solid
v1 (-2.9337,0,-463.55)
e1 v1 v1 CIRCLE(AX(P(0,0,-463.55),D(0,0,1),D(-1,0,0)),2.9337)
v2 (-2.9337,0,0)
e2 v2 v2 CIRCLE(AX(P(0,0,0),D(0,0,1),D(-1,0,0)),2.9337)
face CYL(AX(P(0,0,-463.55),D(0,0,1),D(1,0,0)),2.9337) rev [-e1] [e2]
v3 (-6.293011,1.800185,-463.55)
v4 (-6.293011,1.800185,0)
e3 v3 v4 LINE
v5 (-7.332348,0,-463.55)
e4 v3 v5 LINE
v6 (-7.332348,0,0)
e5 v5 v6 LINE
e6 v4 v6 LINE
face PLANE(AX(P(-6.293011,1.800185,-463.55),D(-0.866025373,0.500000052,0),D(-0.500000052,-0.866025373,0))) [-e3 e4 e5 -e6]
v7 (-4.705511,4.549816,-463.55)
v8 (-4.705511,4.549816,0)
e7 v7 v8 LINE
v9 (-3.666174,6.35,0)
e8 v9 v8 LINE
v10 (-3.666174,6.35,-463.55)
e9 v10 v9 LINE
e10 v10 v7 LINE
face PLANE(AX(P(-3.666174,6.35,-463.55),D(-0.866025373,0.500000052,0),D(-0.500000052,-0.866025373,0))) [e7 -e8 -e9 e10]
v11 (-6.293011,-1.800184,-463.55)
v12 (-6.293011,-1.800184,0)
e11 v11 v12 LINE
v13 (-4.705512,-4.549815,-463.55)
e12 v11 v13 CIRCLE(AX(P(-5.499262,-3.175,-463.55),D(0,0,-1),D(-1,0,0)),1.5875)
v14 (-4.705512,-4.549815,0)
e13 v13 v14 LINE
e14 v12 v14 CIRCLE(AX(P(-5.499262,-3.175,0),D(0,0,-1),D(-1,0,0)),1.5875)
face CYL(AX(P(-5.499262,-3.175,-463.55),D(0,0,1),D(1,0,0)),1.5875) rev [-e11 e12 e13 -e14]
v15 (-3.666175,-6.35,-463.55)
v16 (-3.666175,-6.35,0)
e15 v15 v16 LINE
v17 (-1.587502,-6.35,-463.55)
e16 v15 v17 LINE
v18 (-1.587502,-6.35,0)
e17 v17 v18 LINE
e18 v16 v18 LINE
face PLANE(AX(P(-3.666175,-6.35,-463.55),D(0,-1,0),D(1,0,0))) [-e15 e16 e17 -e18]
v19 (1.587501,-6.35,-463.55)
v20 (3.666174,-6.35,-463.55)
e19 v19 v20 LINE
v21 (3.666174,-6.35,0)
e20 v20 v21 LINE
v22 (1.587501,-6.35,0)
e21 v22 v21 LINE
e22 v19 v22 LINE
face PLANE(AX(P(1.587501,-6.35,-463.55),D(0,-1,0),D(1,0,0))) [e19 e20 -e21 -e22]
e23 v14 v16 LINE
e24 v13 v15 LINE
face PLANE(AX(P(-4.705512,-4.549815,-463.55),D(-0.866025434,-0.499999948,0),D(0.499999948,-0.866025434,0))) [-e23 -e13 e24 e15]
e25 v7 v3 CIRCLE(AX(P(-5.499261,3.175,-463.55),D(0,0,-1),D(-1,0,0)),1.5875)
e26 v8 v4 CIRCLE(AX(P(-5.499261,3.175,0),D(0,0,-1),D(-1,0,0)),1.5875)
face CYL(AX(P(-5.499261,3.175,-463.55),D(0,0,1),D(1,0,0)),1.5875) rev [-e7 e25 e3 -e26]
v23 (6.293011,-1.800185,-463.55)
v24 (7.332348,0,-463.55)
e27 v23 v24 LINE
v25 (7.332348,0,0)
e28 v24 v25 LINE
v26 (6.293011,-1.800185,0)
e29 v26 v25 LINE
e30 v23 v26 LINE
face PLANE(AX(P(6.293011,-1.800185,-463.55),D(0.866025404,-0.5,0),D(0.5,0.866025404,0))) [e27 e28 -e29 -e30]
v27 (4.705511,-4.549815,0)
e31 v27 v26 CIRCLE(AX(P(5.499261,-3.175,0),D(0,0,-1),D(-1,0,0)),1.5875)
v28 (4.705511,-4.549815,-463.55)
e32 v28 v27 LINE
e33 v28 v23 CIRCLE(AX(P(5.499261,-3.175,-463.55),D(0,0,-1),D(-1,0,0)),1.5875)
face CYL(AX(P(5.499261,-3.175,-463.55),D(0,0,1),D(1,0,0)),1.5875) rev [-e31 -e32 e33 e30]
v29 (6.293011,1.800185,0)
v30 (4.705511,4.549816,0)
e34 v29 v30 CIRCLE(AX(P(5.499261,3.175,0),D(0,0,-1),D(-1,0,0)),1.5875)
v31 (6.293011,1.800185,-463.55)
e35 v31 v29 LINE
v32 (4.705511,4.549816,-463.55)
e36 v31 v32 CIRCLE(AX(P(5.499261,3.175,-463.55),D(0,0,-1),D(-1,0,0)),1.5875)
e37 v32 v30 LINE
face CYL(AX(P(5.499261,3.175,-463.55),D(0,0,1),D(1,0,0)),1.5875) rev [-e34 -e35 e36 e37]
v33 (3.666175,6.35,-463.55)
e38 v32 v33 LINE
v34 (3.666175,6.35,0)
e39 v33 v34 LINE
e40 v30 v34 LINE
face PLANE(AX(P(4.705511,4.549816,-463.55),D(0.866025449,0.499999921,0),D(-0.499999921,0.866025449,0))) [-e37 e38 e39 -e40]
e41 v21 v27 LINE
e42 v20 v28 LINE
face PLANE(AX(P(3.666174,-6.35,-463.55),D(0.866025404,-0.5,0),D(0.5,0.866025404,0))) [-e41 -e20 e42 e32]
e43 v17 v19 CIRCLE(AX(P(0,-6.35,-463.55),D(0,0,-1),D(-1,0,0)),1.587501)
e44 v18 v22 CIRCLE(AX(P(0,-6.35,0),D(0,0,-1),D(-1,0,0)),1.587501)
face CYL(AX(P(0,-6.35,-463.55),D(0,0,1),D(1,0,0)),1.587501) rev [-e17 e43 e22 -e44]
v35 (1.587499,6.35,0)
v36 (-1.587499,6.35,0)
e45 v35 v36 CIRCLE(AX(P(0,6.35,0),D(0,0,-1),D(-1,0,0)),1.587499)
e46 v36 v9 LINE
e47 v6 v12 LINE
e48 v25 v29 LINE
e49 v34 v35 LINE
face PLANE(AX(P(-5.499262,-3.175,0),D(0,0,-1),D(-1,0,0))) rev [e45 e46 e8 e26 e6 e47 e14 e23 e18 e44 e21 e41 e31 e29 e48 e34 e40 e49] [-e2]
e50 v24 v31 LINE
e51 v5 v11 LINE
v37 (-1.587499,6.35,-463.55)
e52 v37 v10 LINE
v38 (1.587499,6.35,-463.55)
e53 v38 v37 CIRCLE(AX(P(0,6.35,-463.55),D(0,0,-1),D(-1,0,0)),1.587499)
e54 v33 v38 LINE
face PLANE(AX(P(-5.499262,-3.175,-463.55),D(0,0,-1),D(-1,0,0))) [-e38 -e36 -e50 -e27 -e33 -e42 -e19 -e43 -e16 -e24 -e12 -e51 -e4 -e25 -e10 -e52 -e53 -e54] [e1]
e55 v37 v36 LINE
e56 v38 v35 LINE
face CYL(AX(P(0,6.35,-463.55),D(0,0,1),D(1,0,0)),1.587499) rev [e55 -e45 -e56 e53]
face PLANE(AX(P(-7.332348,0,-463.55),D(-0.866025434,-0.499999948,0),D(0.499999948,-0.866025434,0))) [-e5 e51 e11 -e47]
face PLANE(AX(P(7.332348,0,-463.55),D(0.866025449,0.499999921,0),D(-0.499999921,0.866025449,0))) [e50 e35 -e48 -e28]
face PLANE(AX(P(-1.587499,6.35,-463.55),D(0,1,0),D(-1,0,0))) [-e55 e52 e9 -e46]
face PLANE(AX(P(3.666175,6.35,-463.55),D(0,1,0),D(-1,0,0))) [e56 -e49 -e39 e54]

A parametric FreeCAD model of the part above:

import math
import FreeCAD as App
import Part
import Sketcher

V = App.Vector
Q = App.Units.Quantity

doc = App.newDocument("Part")
body = doc.addObject("PartDesign::Body", "Body")

# Sketch on XY plane
sketch1 = doc.addObject("Sketcher::SketchObject", "Sketch")
body.addObject(sketch1)
sketch1.AttachmentSupport = (doc.XY_Plane, [""])
sketch1.MapMode = "FlatFace"
sketch1.addGeometry(Part.LineSegment(V(-4.7, -4.5, 0), V(-3.7, -6.3, 0)), False)
sketch1.addGeometry(Part.LineSegment(V(-3.7, -6.3, 0), V(-1.6, -6.3, 0)), False)
sketch1.addGeometry(Part.ArcOfCircle(Part.Circle(V(0, -6.4, 0), V(0, 0, 1), 1.6), math.radians(0), math.radians(180)), False)
sketch1.addGeometry(Part.LineSegment(V(1.6, -6.3, 0), V(3.7, -6.3, 0)), False)
sketch1.addGeometry(Part.LineSegment(V(3.7, -6.3, 0), V(4.7, -4.5, 0)), False)
sketch1.addGeometry(Part.ArcOfCircle(Part.Circle(V(5.5, -3.2, 0), V(0, 0, 1), 1.6), math.radians(60), math.radians(240)), False)
sketch1.addGeometry(Part.LineSegment(V(6.3, -1.8, 0), V(7.3, 0, 0)), False)
sketch1.addGeometry(Part.LineSegment(V(7.3, 0, 0), V(6.3, 1.8, 0)), False)
sketch1.addGeometry(Part.ArcOfCircle(Part.Circle(V(5.5, 3.2, 0), V(0, 0, 1), 1.6), math.radians(120), math.radians(300)), False)
sketch1.addGeometry(Part.LineSegment(V(4.7, 4.5, 0), V(3.7, 6.4, 0)), False)
sketch1.addGeometry(Part.LineSegment(V(3.7, 6.4, 0), V(1.6, 6.4, 0)), False)
sketch1.addGeometry(Part.ArcOfCircle(Part.Circle(V(0, 6.4, 0), V(0, 0, 1), 1.6), math.radians(-180), math.radians(0)), False)
sketch1.addGeometry(Part.LineSegment(V(-1.6, 6.4, 0), V(-3.7, 6.4, 0)), False)
sketch1.addGeometry(Part.LineSegment(V(-3.7, 6.4, 0), V(-4.7, 4.5, 0)), False)
sketch1.addGeometry(Part.ArcOfCircle(Part.Circle(V(-5.5, 3.2, 0), V(0, 0, 1), 1.6), math.radians(-120), math.radians(60)), False)
sketch1.addGeometry(Part.LineSegment(V(-6.3, 1.8, 0), V(-7.3, 0, 0)), False)
sketch1.addGeometry(Part.LineSegment(V(-7.3, 0, 0), V(-6.3, -1.8, 0)), False)
sketch1.addGeometry(Part.ArcOfCircle(Part.Circle(V(-5.5, -3.2, 0), V(0, 0, 1), 1.6), math.radians(-60), math.radians(120)), False)
sketch1.addGeometry(Part.Circle(V(0, 0, 0), V(0, 0, 1), 2.9), False)
sketch1.addConstraint(Sketcher.Constraint("Coincident", 0, 2, 1, 1))
sketch1.addConstraint(Sketcher.Constraint("Coincident", 1, 2, 2, 2))
sketch1.addConstraint(Sketcher.Constraint("Coincident", 2, 1, 3, 1))
sketch1.addConstraint(Sketcher.Constraint("Coincident", 3, 2, 4, 1))
sketch1.addConstraint(Sketcher.Constraint("Coincident", 4, 2, 5, 2))
sketch1.addConstraint(Sketcher.Constraint("Coincident", 5, 1, 6, 1))
sketch1.addConstraint(Sketcher.Constraint("Coincident", 6, 2, 7, 1))
sketch1.addConstraint(Sketcher.Constraint("Coincident", 7, 2, 8, 2))
sketch1.addConstraint(Sketcher.Constraint("Coincident", 8, 1, 9, 1))
sketch1.addConstraint(Sketcher.Constraint("Coincident", 9, 2, 10, 1))
sketch1.addConstraint(Sketcher.Constraint("Coincident", 10, 2, 11, 2))
sketch1.addConstraint(Sketcher.Constraint("Coincident", 11, 1, 12, 1))
sketch1.addConstraint(Sketcher.Constraint("Coincident", 12, 2, 13, 1))
sketch1.addConstraint(Sketcher.Constraint("Coincident", 13, 2, 14, 2))
sketch1.addConstraint(Sketcher.Constraint("Coincident", 14, 1, 15, 1))
sketch1.addConstraint(Sketcher.Constraint("Coincident", 15, 2, 16, 1))
sketch1.addConstraint(Sketcher.Constraint("Coincident", 16, 2, 17, 2))
sketch1.addConstraint(Sketcher.Constraint("Coincident", 17, 1, 0, 1))
sketch1.addConstraint(Sketcher.Constraint("Horizontal", 1))
sketch1.addConstraint(Sketcher.Constraint("Horizontal", 3))
sketch1.addConstraint(Sketcher.Constraint("Horizontal", 10))
sketch1.addConstraint(Sketcher.Constraint("Horizontal", 12))
sketch1.addConstraint(Sketcher.Constraint("Coincident", 18, 3, -1, 1))
sketch1.addConstraint(Sketcher.Constraint("Equal", 2, 5))
sketch1.addConstraint(Sketcher.Constraint("Equal", 5, 8))
sketch1.addConstraint(Sketcher.Constraint("Equal", 8, 11))
sketch1.addConstraint(Sketcher.Constraint("Equal", 11, 14))
sketch1.addConstraint(Sketcher.Constraint("Equal", 14, 17))
sketch1.addConstraint(Sketcher.Constraint("Symmetric", 2, 3, 11, 3, -1, 1))
sketch1.addConstraint(Sketcher.Constraint("Symmetric", 5, 3, 14, 3, -1, 1))
sketch1.addConstraint(Sketcher.Constraint("Symmetric", 8, 3, 17, 3, -1, 1))
sketch1.addConstraint(Sketcher.Constraint("Symmetric", 0, 2, 9, 2, -1, 1))
sketch1.addConstraint(Sketcher.Constraint("Symmetric", 3, 2, 12, 2, -1, 1))
sketch1.addConstraint(Sketcher.Constraint("Symmetric", 6, 2, 15, 2, -1, 1))
sketch1.addConstraint(Sketcher.Constraint("Symmetric", 8, 3, 14, 3, -2))
sketch1.addConstraint(Sketcher.Constraint("Symmetric", 1, 2, 2, 1, -2))
sketch1.addConstraint(Sketcher.Constraint("PointOnObject", 6, 2, -1))
sketch1.addConstraint(Sketcher.Constraint("Parallel", 4, 6))
sketch1.addConstraint(Sketcher.Constraint("Parallel", 0, 7))
sketch1.addConstraint(Sketcher.Constraint("Parallel", 7, 9))
sketch1.addConstraint(Sketcher.Constraint("Parallel", 6, 13))
sketch1.addConstraint(Sketcher.Constraint("Parallel", 13, 15))
sketch1.addConstraint(Sketcher.Constraint("Parallel", 9, 16))
sketch1.addConstraint(Sketcher.Constraint("Horizontal", 2, 3, 0, 2))
sketch1.addConstraint(Sketcher.Constraint("Horizontal", 8, 1, 13, 2))
sketch1.addConstraint(Sketcher.Constraint("Horizontal", 7, 2, 14, 1))
sketch1.addConstraint(Sketcher.Constraint("Equal", 4, 6))
sketch1.addConstraint(Sketcher.Constraint("Diameter", 18, Q("0.231 in")))
sketch1.addConstraint(Sketcher.Constraint("Angle", 0, Q("-60.000003 deg")))
sketch1.addConstraint(Sketcher.Constraint("Radius", 2, Q("0.0625 in")))
sketch1.addConstraint(Sketcher.Constraint("DistanceY", 2, 3, 11, 3, Q("0.5 in")))
sketch1.addConstraint(Sketcher.Constraint("DistanceY", 5, 3, 8, 3, Q("0.25 in")))
sketch1.addConstraint(Sketcher.Constraint("DistanceX", 4, 2, 5, 3, Q("0.03125 in")))
sketch1.addConstraint(Sketcher.Constraint("DistanceX", 1, 1, 1, 2, 2.078673))
pad1 = doc.addObject("PartDesign::Pad", "Pad")
body.addObject(pad1)
pad1.Profile = sketch1
pad1.Length = Q("18.25 in")
pad1.Reversed = True

doc.recompute()
